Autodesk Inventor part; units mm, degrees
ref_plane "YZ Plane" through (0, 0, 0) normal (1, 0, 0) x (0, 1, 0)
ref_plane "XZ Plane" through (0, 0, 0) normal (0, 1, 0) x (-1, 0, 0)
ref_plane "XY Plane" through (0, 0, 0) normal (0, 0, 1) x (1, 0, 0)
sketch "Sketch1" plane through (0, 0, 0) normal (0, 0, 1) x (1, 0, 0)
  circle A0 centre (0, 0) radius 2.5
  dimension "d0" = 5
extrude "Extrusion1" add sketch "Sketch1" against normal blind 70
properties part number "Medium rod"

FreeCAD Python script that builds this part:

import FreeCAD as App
import Part
import Sketcher
Q = App.Units.Quantity

doc = App.newDocument("Part")
params = doc.addObject("Spreadsheet::Sheet", "Params")
for row, (alias, value) in enumerate([
    ("sketch1_diameter", "5 mm"),
    ("pad1_length", "70 mm"),
], start=1):
    params.set(f"A{row}", alias)
    params.set(f"B{row}", "=" + value)
    params.setAlias(f"B{row}", alias)

body = doc.addObject("PartDesign::Body", "Body")

sketch1 = body.newObject("Sketcher::SketchObject", "Sketch")
sketch1.AttachmentSupport = (doc.getObject("XY_Plane"), [""])
sketch1.MapMode = "FlatFace"
sketch1.addGeometry(Part.Circle(App.Vector(0, 0, 0), App.Vector(0, 0, 1), 2.5), False)
sketch1.addConstraint([
    Sketcher.Constraint("Coincident", 0, 3, -1, 1),
    Sketcher.Constraint("Diameter", 0, Q("5 mm")),
])
sketch1.setExpression("Constraints[1]", "Params.sketch1_diameter")
pad1 = body.newObject("PartDesign::Pad", "Pad")
pad1.Profile = sketch1
pad1.setExpression("Length", "Params.pad1_length")
pad1.Reversed = True

doc.recompute()
